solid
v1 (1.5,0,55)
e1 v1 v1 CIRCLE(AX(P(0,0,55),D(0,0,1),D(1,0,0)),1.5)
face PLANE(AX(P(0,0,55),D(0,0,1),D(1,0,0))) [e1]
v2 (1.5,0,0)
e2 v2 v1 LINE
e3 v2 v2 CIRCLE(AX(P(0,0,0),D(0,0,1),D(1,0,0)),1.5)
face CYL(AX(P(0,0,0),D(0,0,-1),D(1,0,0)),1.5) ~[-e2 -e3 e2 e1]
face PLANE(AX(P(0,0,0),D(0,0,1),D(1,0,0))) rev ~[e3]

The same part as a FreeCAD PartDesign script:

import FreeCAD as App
import Part
import Sketcher
from FreeCAD import Vector

doc = App.newDocument("Part")
body = doc.addObject("PartDesign::Body", "Body")

# Sketch on XY plane
sketch1 = doc.addObject("Sketcher::SketchObject", "Sketch")
body.addObject(sketch1)
sketch1.AttachmentSupport = (doc.XY_Plane, [""])
sketch1.MapMode = "FlatFace"
sketch1.addGeometry(Part.Circle(Vector(0, 0, 0), Vector(0, 0, 1), 1.5), False)
sketch1.addConstraint([
    Sketcher.Constraint("Coincident", 0, 3, -1, 1),
    Sketcher.Constraint("Diameter", 0, 3.0),
])
pad1 = doc.addObject("PartDesign::Pad", "Pad")
body.addObject(pad1)
pad1.Profile = sketch1
pad1.Length = 55

doc.recompute()
